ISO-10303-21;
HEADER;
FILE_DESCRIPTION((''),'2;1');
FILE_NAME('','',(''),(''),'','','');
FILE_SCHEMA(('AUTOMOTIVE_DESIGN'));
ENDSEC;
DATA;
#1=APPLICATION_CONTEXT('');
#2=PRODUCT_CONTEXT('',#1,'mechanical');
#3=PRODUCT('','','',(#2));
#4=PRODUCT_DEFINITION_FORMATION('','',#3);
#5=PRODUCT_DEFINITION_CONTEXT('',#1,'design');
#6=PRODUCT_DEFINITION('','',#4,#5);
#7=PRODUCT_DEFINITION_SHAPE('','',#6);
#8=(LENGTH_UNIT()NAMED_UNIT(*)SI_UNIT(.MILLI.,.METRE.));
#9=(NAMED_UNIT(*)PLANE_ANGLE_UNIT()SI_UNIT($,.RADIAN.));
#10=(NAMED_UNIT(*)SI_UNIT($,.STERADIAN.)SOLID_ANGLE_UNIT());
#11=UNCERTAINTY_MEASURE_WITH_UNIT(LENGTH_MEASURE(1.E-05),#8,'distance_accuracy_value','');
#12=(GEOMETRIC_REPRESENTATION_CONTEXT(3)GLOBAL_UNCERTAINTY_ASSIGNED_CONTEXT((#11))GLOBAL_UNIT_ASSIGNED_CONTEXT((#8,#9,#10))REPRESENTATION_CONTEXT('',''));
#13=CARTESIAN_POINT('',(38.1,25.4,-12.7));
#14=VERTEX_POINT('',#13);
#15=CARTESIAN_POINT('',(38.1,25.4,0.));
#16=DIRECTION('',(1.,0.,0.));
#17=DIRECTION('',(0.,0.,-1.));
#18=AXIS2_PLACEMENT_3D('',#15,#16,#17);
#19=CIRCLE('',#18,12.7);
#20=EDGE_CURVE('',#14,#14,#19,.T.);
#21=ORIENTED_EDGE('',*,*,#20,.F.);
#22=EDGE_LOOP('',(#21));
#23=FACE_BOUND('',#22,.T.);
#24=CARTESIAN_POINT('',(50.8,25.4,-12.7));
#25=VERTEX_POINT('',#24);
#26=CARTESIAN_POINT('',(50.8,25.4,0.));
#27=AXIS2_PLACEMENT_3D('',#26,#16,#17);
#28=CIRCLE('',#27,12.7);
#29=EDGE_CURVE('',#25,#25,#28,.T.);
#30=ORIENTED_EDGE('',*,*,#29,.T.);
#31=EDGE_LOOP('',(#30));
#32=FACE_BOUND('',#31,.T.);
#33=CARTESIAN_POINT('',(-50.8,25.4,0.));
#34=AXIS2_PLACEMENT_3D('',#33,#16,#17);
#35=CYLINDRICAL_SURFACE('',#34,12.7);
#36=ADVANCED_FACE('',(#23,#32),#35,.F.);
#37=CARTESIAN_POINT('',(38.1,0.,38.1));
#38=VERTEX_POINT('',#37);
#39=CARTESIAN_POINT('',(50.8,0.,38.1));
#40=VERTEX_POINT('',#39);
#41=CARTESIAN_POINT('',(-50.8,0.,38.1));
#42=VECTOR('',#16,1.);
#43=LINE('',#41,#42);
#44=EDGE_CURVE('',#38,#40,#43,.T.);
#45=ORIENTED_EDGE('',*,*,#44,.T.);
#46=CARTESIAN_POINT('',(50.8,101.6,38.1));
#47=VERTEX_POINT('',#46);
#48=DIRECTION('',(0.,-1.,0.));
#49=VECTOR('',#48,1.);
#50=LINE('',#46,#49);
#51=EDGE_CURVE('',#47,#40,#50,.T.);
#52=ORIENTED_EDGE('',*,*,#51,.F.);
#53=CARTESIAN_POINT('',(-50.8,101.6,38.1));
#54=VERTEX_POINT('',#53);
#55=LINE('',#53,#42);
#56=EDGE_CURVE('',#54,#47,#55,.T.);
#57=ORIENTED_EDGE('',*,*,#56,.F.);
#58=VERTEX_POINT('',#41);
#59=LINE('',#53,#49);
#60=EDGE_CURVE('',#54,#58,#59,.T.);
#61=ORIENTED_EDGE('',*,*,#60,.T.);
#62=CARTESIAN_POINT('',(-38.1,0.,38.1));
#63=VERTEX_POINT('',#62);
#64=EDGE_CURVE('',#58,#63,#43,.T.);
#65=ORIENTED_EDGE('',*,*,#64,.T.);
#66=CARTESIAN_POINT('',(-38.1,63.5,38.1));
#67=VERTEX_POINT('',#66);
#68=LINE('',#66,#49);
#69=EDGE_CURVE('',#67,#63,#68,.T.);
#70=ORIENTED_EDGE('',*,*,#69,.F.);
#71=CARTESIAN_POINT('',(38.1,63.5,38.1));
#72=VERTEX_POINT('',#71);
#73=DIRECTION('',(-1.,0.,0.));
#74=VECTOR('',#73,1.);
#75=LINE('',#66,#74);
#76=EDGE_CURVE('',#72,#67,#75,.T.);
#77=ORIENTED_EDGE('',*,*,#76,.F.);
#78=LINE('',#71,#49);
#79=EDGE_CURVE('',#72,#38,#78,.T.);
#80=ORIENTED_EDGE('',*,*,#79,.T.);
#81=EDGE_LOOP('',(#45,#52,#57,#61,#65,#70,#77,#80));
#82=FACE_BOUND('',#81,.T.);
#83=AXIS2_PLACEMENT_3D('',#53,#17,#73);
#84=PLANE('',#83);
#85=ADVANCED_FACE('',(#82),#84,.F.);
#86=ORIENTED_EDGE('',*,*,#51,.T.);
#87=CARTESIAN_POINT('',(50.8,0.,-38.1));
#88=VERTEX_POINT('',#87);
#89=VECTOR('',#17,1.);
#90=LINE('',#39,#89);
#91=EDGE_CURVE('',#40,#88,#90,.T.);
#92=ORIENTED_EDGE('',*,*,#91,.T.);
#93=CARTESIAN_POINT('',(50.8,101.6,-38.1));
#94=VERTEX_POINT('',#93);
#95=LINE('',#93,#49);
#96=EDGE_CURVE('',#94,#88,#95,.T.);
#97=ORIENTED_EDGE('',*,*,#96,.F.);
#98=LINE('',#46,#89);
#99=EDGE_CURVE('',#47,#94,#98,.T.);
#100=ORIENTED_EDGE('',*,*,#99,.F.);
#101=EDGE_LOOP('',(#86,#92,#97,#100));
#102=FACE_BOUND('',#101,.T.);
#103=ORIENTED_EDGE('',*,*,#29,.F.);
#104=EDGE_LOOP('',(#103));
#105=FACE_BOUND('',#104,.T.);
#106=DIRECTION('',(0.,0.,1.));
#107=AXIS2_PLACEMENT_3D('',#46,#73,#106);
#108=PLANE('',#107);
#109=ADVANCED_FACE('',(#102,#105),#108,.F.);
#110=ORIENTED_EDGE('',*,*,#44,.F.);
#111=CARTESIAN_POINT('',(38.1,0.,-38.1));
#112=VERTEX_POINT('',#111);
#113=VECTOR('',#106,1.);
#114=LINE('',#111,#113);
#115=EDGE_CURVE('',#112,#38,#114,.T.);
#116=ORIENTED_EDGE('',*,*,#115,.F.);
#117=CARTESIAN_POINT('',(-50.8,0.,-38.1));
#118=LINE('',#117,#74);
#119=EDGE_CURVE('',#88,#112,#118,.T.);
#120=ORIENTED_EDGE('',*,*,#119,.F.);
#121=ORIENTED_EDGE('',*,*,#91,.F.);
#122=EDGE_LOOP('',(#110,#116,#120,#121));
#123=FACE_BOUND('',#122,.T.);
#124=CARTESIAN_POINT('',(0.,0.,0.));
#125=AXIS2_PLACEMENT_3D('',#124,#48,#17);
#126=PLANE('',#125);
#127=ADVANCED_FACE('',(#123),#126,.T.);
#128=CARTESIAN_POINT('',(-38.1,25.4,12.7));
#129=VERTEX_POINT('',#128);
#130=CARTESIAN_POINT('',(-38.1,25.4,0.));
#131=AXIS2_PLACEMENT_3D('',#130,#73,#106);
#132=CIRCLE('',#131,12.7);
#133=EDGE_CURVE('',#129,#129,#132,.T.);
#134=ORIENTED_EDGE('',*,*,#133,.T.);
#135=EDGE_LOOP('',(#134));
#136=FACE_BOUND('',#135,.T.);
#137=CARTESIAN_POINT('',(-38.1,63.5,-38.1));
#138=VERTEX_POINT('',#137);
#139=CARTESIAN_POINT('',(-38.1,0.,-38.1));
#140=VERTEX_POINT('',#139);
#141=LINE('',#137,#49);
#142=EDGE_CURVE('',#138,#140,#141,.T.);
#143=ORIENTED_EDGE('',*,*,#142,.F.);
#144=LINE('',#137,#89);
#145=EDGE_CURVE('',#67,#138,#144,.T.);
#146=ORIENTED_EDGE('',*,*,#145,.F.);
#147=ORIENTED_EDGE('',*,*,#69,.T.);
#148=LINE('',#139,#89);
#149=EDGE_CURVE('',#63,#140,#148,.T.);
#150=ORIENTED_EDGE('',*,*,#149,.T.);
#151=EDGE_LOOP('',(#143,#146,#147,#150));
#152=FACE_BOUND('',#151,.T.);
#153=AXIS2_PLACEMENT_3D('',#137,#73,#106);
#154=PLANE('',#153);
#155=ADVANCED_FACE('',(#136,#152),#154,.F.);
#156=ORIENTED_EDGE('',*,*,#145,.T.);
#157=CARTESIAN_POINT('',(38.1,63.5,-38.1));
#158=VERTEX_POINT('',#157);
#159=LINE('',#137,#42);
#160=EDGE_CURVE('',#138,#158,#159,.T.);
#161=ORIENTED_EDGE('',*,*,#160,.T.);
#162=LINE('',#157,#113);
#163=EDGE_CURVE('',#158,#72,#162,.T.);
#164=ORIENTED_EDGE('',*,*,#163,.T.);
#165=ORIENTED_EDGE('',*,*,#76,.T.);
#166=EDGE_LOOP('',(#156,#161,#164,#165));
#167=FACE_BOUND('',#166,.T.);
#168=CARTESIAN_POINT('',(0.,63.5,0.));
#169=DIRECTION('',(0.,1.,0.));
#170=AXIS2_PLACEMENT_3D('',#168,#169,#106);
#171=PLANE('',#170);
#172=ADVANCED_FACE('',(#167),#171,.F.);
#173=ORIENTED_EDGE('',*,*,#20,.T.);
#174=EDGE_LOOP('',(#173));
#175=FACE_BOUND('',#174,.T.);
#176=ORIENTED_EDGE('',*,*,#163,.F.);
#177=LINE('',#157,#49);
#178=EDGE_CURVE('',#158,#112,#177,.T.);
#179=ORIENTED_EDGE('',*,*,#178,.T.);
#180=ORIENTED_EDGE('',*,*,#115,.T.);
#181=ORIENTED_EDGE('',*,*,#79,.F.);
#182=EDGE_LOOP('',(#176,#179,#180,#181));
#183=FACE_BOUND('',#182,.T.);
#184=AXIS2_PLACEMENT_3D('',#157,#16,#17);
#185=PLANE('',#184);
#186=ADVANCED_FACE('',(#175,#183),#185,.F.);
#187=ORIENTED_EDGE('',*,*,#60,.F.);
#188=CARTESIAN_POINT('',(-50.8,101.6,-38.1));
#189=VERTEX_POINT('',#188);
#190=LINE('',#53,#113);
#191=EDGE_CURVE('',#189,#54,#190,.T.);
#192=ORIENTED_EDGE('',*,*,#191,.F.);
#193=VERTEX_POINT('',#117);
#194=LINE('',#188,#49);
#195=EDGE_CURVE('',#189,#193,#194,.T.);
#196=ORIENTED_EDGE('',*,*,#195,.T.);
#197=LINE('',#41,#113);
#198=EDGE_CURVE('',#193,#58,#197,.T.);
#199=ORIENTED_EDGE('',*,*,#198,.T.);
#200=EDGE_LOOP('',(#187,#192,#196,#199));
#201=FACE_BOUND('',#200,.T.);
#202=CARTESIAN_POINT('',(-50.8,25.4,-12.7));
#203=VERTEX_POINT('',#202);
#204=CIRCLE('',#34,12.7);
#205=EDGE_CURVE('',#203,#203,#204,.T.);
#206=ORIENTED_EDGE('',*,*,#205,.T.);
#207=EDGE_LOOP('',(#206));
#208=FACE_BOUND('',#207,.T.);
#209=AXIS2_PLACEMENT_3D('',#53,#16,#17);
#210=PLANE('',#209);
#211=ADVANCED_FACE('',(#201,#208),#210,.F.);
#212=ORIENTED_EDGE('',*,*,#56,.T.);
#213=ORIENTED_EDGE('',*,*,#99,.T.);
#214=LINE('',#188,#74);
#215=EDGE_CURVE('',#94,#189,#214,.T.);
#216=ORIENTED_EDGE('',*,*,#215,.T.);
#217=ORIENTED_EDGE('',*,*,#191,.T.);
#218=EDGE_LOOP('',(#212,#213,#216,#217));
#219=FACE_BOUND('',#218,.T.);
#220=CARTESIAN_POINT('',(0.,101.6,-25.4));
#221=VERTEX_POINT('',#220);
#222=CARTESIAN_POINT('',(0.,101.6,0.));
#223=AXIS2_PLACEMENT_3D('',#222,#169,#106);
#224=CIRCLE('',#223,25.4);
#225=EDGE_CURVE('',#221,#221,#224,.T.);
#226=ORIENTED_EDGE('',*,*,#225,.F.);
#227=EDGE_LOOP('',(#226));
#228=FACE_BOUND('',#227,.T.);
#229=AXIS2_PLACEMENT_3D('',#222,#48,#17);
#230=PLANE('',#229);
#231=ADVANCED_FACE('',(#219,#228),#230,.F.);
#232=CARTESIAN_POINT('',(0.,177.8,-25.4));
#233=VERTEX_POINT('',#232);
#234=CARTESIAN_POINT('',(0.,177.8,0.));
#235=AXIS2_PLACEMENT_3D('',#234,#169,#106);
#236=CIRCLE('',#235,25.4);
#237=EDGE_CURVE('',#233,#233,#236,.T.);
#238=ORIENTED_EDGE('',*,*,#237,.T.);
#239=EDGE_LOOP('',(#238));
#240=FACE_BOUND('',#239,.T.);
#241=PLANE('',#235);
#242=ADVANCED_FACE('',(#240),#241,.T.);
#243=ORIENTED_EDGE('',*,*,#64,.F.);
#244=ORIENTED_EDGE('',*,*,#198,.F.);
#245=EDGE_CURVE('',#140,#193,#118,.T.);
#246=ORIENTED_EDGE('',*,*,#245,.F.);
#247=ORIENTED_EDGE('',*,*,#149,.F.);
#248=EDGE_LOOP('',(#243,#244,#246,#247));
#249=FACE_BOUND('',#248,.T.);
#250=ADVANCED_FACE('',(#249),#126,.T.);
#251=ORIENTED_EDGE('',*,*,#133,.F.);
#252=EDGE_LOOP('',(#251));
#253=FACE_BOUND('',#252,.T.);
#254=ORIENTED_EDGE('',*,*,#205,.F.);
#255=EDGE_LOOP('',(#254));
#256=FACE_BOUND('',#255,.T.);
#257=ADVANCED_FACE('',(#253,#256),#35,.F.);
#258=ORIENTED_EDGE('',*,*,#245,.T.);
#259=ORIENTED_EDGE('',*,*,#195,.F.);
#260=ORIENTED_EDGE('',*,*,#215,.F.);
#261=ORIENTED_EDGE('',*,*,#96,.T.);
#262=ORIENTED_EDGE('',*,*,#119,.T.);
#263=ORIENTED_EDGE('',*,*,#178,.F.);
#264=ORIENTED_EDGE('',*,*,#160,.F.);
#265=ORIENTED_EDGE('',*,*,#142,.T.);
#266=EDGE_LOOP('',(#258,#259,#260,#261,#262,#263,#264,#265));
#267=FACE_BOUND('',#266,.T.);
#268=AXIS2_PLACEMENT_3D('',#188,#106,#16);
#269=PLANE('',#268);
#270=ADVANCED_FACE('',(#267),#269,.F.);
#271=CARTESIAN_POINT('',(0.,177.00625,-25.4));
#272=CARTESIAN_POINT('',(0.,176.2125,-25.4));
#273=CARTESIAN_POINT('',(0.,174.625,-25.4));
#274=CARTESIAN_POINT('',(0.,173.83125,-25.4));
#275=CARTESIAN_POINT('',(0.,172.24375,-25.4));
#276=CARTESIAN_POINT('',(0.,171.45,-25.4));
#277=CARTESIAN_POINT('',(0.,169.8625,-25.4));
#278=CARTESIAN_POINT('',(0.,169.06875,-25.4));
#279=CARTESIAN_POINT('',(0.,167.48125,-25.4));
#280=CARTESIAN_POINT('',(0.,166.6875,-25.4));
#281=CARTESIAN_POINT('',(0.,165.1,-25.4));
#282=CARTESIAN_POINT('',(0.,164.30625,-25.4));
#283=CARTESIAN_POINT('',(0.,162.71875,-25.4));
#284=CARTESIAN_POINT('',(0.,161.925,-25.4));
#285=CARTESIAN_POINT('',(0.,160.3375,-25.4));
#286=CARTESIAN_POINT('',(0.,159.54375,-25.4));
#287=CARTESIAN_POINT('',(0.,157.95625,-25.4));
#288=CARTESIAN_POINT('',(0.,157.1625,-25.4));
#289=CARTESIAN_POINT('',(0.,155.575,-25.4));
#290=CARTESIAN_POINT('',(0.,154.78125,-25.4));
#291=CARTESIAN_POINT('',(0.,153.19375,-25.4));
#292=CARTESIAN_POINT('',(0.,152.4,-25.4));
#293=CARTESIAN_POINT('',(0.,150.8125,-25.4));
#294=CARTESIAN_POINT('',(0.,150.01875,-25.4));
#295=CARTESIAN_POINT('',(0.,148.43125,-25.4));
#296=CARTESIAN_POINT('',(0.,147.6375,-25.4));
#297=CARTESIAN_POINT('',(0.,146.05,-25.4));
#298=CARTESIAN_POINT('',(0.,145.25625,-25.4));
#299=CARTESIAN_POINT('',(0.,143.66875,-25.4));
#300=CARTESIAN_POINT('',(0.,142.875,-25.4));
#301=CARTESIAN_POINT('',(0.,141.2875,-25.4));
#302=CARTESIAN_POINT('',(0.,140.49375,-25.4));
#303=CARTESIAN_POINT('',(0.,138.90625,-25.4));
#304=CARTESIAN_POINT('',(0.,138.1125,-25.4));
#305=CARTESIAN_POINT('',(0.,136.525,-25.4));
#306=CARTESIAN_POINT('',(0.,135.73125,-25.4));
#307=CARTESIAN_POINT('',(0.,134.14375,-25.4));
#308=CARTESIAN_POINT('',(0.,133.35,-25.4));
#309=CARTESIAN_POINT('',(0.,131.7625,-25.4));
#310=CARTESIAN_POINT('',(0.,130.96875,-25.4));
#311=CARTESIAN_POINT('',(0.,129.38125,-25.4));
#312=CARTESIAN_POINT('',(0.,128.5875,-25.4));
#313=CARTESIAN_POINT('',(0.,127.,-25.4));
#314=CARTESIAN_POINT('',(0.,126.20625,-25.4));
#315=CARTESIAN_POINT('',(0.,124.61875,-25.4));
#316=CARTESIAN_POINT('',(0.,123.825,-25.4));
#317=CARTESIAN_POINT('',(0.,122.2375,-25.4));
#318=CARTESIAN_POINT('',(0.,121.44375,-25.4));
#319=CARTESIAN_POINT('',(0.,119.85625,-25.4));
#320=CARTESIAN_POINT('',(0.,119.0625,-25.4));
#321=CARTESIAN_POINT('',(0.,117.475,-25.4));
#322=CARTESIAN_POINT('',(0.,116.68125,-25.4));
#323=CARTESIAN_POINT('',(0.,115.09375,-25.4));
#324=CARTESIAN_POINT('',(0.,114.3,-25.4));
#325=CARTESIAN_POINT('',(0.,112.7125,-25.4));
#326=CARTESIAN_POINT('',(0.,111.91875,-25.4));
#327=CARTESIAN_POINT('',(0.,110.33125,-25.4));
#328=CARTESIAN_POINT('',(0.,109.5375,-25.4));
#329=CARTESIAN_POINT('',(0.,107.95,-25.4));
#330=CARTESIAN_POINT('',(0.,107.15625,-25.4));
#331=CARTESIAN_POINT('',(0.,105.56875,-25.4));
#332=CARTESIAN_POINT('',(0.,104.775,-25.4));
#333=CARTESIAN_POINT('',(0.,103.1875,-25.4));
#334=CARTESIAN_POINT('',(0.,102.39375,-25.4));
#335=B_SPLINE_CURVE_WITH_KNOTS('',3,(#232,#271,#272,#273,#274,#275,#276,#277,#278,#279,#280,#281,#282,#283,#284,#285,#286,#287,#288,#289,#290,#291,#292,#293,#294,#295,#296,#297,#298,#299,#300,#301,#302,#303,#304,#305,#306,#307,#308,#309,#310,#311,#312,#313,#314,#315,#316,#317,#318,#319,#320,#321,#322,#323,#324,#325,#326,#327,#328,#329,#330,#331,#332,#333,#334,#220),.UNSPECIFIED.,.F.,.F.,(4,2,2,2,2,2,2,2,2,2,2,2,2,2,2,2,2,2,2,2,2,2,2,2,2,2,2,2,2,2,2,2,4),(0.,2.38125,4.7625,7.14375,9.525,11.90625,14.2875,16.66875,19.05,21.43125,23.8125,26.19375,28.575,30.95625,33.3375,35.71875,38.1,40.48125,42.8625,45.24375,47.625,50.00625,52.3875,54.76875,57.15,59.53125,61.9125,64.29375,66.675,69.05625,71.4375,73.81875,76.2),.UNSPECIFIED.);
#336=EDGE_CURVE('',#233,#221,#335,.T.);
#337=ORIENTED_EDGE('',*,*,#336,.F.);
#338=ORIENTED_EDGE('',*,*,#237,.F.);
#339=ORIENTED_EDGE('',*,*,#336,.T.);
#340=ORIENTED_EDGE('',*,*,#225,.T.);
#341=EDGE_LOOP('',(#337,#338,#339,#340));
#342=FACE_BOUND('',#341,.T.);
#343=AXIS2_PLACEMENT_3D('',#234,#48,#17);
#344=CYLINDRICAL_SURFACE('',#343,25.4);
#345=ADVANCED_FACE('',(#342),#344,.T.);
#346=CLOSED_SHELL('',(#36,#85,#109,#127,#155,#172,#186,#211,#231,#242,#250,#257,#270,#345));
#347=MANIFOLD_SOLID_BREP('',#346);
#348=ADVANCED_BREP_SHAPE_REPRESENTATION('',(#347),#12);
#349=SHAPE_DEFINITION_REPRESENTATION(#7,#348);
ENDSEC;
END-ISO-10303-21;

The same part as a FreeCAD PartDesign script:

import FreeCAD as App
import Part
import Sketcher

V = App.Vector
Q = App.Units.Quantity

doc = App.newDocument("Part")
body = doc.addObject("PartDesign::Body", "Body")

# Sketch on XZ plane
sketch1 = body.newObject("Sketcher::SketchObject", "Sketch")
sketch1.AttachmentSupport = (doc.getObject("XZ_Plane"), [""])
sketch1.MapMode = "FlatFace"
sketch1.addGeometry([
    Part.LineSegment(V(-50.8, -38.1, 0), V(-50.8, 38.1, 0)),
    Part.LineSegment(V(-50.8, 38.1, 0), V(50.8, 38.1, 0)),
    Part.LineSegment(V(50.8, 38.1, 0), V(50.8, -38.1, 0)),
    Part.LineSegment(V(50.8, -38.1, 0), V(-50.8, -38.1, 0)),
], False)
sketch1.addConstraint([
    Sketcher.Constraint("Coincident", 0, 2, 1, 1),
    Sketcher.Constraint("Coincident", 1, 2, 2, 1),
    Sketcher.Constraint("Coincident", 2, 2, 3, 1),
    Sketcher.Constraint("Coincident", 3, 2, 0, 1),
    Sketcher.Constraint("Vertical", 0),
    Sketcher.Constraint("Horizontal", 1),
    Sketcher.Constraint("Vertical", 2),
    Sketcher.Constraint("Horizontal", 3),
    Sketcher.Constraint("Symmetric", 0, 2, 2, 2, -1, 1),
    Sketcher.Constraint("DistanceX", 1, 1, 1, 2, Q("4 in")),
    Sketcher.Constraint("DistanceY", 0, 1, 0, 2, Q("3 in")),
])
pad1 = body.newObject("PartDesign::Pad", "Pad")
pad1.Profile = sketch1
pad1.Length = Q("4 in")
pad1.Reversed = True

# Sketch on XZ plane
sketch2 = body.newObject("Sketcher::SketchObject", "Sketch001")
sketch2.AttachmentSupport = (doc.getObject("XZ_Plane"), [""])
sketch2.MapMode = "FlatFace"
sketch2.addGeometry([
    Part.LineSegment(V(-38.1, 38.1, 0), V(-38.1, -38.1, 0)),
    Part.LineSegment(V(-38.1, -38.1, 0), V(38.1, -38.1, 0)),
    Part.LineSegment(V(38.1, -38.1, 0), V(38.1, 38.1, 0)),
    Part.LineSegment(V(38.1, 38.1, 0), V(-38.1, 38.1, 0)),
], False)
sketch2.addConstraint([
    Sketcher.Constraint("Coincident", 0, 2, 1, 1),
    Sketcher.Constraint("Coincident", 1, 2, 2, 1),
    Sketcher.Constraint("Coincident", 2, 2, 3, 1),
    Sketcher.Constraint("Coincident", 3, 2, 0, 1),
    Sketcher.Constraint("Vertical", 0),
    Sketcher.Constraint("Horizontal", 1),
    Sketcher.Constraint("Vertical", 2),
    Sketcher.Constraint("Horizontal", 3),
    Sketcher.Constraint("Symmetric", 0, 2, 2, 2, -1, 1),
    Sketcher.Constraint("Equal", 3, 0),
    Sketcher.Constraint("DistanceX", 1, 1, 1, 2, Q("3 in")),
])
pocket1 = body.newObject("PartDesign::Pocket", "Pocket")
pocket1.Profile = sketch2
pocket1.Length = Q("2.5 in")

# Sketch on YZ plane
sketch3 = body.newObject("Sketcher::SketchObject", "Sketch002")
sketch3.AttachmentSupport = (doc.getObject("YZ_Plane"), [""])
sketch3.MapMode = "FlatFace"
sketch3.AttachmentOffset = App.Placement(V(0, 0, 2 * 25.4), App.Rotation())
sketch3.addGeometry(Part.Circle(V(25.4, 0, 0), V(0, 0, 1), 12.7), False)
sketch3.addConstraint([
    Sketcher.Constraint("PointOnObject", 0, 3, -1),
    Sketcher.Constraint("Diameter", 0, Q("1 in")),
    Sketcher.Constraint("DistanceX", -1, 1, 0, 3, Q("1 in")),
])
pocket2 = body.newObject("PartDesign::Pocket", "Pocket001")
pocket2.Profile = sketch3
pocket2.Type = "ThroughAll"

# Sketch on XZ plane
sketch4 = body.newObject("Sketcher::SketchObject", "Sketch003")
sketch4.AttachmentSupport = (doc.getObject("XZ_Plane"), [""])
sketch4.MapMode = "FlatFace"
sketch4.AttachmentOffset = App.Placement(V(0, 0, -4 * 25.4), App.Rotation())
sketch4.addGeometry(Part.Circle(V(0, 0, 0), V(0, 0, 1), 25.4), False)
sketch4.addConstraint([
    Sketcher.Constraint("Coincident", 0, 3, -1, 1),
    Sketcher.Constraint("Diameter", 0, Q("2 in")),
])
pad2 = body.newObject("PartDesign::Pad", "Pad001")
pad2.Profile = sketch4
pad2.Length = Q("3 in")
pad2.Reversed = True

doc.recompute()
